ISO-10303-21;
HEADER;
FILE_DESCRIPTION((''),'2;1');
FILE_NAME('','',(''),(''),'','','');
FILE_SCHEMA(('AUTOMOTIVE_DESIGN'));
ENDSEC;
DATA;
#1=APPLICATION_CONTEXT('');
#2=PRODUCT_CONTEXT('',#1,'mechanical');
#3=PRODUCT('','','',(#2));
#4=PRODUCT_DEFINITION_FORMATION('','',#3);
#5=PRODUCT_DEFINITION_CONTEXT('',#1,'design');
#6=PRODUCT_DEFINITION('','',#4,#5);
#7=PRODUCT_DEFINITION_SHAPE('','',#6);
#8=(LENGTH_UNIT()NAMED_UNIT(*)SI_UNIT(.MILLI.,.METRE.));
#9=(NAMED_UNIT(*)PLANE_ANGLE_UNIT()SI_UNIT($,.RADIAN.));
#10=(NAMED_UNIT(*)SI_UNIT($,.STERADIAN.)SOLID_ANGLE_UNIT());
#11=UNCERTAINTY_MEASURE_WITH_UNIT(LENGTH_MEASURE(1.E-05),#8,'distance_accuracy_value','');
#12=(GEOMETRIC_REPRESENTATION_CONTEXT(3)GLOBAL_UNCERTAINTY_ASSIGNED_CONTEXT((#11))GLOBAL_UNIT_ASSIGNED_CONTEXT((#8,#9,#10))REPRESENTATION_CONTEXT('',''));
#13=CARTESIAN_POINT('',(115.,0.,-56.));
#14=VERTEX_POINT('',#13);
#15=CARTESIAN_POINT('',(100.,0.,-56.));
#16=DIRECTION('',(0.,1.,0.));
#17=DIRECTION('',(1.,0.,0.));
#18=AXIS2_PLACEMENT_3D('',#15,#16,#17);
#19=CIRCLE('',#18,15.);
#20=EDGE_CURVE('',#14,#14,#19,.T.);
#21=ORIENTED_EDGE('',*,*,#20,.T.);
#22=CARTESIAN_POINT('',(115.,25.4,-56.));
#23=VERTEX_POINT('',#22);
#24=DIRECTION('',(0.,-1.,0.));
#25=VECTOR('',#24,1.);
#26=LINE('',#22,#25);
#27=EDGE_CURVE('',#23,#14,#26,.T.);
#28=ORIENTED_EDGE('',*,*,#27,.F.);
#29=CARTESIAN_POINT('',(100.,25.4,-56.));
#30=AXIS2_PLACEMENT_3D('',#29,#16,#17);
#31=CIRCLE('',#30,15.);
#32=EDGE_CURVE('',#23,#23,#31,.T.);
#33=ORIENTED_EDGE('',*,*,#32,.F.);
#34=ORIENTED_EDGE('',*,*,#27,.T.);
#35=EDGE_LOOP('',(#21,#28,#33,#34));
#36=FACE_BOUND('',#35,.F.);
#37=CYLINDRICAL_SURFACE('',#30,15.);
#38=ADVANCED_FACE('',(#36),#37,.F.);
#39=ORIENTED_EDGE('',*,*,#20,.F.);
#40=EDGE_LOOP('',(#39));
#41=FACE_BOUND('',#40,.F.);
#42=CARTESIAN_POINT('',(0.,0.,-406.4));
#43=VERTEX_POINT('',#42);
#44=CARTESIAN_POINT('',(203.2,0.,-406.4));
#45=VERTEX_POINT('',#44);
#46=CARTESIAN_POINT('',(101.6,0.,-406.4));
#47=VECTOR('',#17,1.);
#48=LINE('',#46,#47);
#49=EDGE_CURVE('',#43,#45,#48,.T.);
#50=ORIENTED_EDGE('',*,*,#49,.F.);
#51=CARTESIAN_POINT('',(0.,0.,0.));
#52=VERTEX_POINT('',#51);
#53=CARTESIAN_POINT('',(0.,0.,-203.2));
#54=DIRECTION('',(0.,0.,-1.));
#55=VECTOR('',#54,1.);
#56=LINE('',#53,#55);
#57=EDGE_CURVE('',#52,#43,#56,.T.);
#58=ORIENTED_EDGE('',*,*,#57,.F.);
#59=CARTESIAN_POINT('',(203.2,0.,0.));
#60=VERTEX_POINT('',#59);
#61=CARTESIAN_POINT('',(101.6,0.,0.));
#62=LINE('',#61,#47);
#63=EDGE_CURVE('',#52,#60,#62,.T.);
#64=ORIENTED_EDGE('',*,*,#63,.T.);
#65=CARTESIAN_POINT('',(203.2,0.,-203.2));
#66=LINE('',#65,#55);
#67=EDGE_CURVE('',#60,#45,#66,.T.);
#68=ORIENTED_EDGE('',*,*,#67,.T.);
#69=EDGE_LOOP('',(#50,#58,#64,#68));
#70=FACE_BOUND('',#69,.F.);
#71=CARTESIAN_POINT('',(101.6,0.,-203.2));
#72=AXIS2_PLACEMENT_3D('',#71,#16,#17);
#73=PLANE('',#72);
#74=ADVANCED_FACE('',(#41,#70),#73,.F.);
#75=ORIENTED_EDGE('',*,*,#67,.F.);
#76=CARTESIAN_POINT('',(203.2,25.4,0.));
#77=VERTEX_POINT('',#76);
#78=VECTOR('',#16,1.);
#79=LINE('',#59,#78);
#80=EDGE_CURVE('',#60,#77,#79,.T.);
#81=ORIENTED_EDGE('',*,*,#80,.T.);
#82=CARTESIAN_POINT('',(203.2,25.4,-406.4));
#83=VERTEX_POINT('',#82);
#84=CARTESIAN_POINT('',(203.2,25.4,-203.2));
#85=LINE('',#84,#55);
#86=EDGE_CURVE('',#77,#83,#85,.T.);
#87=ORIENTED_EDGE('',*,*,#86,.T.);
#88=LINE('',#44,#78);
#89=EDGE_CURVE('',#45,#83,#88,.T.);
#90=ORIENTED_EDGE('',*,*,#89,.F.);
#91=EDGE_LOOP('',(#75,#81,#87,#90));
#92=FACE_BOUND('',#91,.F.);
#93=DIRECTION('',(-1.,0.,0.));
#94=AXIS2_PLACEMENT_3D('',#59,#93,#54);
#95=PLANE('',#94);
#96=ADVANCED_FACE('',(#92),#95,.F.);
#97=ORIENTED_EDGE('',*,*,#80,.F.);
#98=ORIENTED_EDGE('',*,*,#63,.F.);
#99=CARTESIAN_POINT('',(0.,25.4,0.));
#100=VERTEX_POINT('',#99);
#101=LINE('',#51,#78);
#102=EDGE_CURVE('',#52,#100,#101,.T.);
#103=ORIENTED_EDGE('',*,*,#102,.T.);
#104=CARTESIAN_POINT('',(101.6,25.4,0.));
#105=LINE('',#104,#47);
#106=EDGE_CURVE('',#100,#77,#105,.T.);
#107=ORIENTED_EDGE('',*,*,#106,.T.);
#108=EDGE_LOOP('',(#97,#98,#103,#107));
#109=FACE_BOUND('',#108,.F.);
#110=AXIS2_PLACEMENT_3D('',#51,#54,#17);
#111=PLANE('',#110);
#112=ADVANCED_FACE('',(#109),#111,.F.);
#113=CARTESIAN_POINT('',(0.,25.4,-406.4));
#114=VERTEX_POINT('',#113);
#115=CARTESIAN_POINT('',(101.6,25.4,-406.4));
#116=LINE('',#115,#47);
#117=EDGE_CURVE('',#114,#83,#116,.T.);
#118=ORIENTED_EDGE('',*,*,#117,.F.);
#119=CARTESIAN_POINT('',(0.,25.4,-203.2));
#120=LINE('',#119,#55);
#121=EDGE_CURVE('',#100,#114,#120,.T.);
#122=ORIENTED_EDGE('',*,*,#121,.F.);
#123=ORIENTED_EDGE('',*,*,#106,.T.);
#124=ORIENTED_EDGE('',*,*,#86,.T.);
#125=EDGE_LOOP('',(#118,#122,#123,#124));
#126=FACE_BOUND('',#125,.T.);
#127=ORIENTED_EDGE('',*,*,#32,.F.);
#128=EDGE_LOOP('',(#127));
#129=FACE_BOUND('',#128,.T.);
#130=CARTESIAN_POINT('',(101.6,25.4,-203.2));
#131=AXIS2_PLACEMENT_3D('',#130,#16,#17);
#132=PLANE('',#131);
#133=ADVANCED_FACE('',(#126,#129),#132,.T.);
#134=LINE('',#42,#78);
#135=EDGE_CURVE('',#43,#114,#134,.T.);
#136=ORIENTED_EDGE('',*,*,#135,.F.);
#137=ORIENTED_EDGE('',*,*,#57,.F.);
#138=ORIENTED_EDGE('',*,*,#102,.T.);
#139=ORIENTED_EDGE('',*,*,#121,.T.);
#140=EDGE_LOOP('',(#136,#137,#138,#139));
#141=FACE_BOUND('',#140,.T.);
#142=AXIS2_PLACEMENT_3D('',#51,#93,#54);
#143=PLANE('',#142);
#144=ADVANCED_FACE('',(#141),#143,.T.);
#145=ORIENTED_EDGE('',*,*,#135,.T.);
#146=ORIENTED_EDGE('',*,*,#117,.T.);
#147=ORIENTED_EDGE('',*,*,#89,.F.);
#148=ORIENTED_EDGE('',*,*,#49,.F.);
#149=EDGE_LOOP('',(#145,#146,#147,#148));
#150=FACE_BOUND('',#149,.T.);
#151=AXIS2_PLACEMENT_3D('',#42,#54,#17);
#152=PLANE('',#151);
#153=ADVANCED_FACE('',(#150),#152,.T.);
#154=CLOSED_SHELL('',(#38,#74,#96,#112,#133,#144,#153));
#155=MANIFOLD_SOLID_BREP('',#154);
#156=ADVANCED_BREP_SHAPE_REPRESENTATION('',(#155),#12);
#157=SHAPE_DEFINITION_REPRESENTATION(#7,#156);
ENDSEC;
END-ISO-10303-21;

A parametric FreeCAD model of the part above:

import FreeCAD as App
import Part
import Sketcher
from FreeCAD import Vector
Q = App.Units.Quantity

doc = App.newDocument("Part")
body = doc.addObject("PartDesign::Body", "Body")

# Sketch on XZ plane
sketch1 = body.newObject("Sketcher::SketchObject", "Sketch")
sketch1.AttachmentSupport = (doc.getObject("XZ_Plane"), [""])
sketch1.MapMode = "FlatFace"
sketch1.addGeometry(Part.LineSegment(Vector(0, -406.4, 0), Vector(0, 0, 0)), False)
sketch1.addGeometry(Part.LineSegment(Vector(0, 0, 0), Vector(203.2, 0, 0)), False)
sketch1.addGeometry(Part.LineSegment(Vector(203.2, 0, 0), Vector(203.2, -406.4, 0)), False)
sketch1.addGeometry(Part.LineSegment(Vector(203.2, -406.4, 0), Vector(0, -406.4, 0)), False)
sketch1.addConstraint(Sketcher.Constraint("Coincident", 0, 2, 1, 1))
sketch1.addConstraint(Sketcher.Constraint("Coincident", 1, 2, 2, 1))
sketch1.addConstraint(Sketcher.Constraint("Coincident", 2, 2, 3, 1))
sketch1.addConstraint(Sketcher.Constraint("Coincident", 3, 2, 0, 1))
sketch1.addConstraint(Sketcher.Constraint("Vertical", 0))
sketch1.addConstraint(Sketcher.Constraint("Horizontal", 1))
sketch1.addConstraint(Sketcher.Constraint("Vertical", 2))
sketch1.addConstraint(Sketcher.Constraint("Horizontal", 3))
sketch1.addConstraint(Sketcher.Constraint("Coincident", 0, 2, -1, 1))
sketch1.addConstraint(Sketcher.Constraint("DistanceX", 1, 1, 1, 2, Q("8 in")))
sketch1.addConstraint(Sketcher.Constraint("DistanceY", 0, 1, 0, 2, Q("16 in")))
pad1 = body.newObject("PartDesign::Pad", "Pad")
pad1.Profile = sketch1
pad1.Length = Q("1 in")
pad1.Reversed = True

# Sketch on XZ plane
sketch2 = body.newObject("Sketcher::SketchObject", "Sketch001")
sketch2.AttachmentSupport = (doc.getObject("XZ_Plane"), [""])
sketch2.MapMode = "FlatFace"
sketch2.AttachmentOffset = App.Placement(Vector(0, 0, -1 * 25.4), App.Rotation())
sketch2.addGeometry(Part.Circle(Vector(100, -56, 0), Vector(0, 0, 1), 15), False)
sketch2.addConstraint(Sketcher.Constraint("Diameter", 0, 30.0))
sketch2.addConstraint(Sketcher.Constraint("DistanceX", -1, 1, 0, 3, 100.0))
sketch2.addConstraint(Sketcher.Constraint("DistanceY", 0, 3, -1, 1, 56.0))
pocket1 = body.newObject("PartDesign::Pocket", "Pocket")
pocket1.Profile = sketch2
pocket1.Length = Q("1 in")
pocket1.Reversed = True

doc.recompute()
